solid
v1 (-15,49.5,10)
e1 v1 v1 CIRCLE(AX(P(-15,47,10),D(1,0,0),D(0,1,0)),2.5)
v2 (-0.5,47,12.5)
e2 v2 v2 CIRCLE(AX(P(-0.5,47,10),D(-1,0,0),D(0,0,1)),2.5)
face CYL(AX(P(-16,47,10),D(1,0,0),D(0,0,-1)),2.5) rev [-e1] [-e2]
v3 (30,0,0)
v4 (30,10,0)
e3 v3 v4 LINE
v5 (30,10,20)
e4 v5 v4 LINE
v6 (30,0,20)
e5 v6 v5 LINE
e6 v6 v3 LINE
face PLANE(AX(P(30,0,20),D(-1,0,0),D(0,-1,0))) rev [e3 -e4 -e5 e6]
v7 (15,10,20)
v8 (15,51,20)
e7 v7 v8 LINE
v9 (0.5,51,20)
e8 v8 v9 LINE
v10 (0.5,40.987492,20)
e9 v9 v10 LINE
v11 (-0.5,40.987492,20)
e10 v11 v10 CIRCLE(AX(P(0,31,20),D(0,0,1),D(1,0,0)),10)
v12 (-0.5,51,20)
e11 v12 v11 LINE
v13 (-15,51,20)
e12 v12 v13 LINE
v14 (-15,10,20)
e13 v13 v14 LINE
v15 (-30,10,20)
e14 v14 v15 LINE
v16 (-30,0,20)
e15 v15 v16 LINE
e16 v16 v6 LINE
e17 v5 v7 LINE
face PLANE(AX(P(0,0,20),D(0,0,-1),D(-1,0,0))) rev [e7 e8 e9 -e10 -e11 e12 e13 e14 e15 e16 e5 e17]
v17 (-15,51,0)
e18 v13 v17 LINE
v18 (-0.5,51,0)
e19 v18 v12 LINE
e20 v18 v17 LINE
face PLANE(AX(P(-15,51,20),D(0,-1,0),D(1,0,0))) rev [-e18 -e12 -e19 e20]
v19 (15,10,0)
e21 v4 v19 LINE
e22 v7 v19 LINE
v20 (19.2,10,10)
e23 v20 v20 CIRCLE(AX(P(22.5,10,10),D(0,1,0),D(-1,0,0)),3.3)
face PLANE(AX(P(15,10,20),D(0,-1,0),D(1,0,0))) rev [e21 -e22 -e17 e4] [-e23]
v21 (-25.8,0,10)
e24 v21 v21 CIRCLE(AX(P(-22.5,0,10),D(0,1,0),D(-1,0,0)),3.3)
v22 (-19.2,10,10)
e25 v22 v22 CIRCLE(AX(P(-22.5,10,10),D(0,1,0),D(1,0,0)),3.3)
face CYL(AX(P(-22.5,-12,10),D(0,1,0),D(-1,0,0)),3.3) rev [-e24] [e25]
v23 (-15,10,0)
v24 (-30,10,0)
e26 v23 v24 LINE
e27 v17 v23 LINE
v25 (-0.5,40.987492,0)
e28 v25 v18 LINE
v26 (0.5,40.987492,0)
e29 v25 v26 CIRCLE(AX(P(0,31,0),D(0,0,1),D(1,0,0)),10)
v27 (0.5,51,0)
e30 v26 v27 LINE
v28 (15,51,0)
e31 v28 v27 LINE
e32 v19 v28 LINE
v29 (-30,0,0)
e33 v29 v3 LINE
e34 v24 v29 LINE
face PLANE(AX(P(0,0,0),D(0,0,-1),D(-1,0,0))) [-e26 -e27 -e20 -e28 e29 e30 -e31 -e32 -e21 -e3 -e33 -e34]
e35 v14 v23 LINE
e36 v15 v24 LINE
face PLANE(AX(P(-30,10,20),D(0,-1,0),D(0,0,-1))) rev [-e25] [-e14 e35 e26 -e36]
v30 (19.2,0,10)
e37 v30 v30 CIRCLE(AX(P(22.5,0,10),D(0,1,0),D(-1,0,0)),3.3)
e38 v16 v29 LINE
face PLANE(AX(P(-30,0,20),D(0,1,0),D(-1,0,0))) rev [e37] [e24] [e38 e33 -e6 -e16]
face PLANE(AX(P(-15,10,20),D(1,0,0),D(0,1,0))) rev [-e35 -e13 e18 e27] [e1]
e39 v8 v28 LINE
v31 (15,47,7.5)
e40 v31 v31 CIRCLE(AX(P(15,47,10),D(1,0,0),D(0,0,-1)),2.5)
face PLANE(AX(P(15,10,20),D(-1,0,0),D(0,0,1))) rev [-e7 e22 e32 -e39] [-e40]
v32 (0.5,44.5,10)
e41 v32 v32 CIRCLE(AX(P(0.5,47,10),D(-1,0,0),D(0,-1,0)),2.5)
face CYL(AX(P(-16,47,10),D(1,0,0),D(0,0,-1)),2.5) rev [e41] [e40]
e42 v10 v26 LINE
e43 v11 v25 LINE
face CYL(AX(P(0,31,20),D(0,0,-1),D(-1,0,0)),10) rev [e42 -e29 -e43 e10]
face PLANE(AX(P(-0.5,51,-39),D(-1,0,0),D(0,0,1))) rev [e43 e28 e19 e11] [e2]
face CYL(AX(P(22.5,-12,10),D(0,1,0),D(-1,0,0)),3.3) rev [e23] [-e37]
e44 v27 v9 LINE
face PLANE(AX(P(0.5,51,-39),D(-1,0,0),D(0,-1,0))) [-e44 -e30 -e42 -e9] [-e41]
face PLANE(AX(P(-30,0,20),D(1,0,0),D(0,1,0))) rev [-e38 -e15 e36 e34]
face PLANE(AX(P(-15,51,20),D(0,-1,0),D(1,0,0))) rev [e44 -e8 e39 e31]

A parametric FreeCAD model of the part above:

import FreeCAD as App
import Part
import Sketcher
from FreeCAD import Vector
Q = App.Units.Quantity


def add_polygon(sketch, points):
    """Adds a closed chain of lines whose ends are joined by coincident constraints."""
    first, n = sketch.GeometryCount, len(points)
    for a, b in zip(points, points[1:] + points[:1]):
        sketch.addGeometry(Part.LineSegment(App.Vector(*a, 0), App.Vector(*b, 0)), False)
    for i in range(n):
        sketch.addConstraint(Sketcher.Constraint("Coincident", first + i, 2, first + (i + 1) % n, 1))

doc = App.newDocument("Part")
body = doc.addObject("PartDesign::Body", "Body")

# Sketch on XY plane
sketch1 = body.newObject("Sketcher::SketchObject", "Sketch")
sketch1.AttachmentSupport = (doc.getObject("XY_Plane"), [""])
sketch1.MapMode = "FlatFace"
add_polygon(sketch1, [(-30, 0), (30, 0), (30, 10), (15, 10), (15, 51), (-15, 51), (-15, 10), (-30, 10)])  # lines 0-7
sketch1.addGeometry(Part.Circle(Vector(0, 31, 0), Vector(0, 0, 1), 10), False)  # 8
sketch1.addConstraint(Sketcher.Constraint("Horizontal", 0))
sketch1.addConstraint(Sketcher.Constraint("Vertical", 1))
sketch1.addConstraint(Sketcher.Constraint("Horizontal", 2))
sketch1.addConstraint(Sketcher.Constraint("Vertical", 3))
sketch1.addConstraint(Sketcher.Constraint("Horizontal", 4))
sketch1.addConstraint(Sketcher.Constraint("Vertical", 5))
sketch1.addConstraint(Sketcher.Constraint("Horizontal", 6))
sketch1.addConstraint(Sketcher.Constraint("Vertical", 7))
sketch1.addConstraint(Sketcher.Constraint("Symmetric", 0, 2, 7, 2, -1, 1))
sketch1.addConstraint(Sketcher.Constraint("Symmetric", 2, 2, 5, 2, -2))
sketch1.addConstraint(Sketcher.Constraint("PointOnObject", 8, 3, -2))
sketch1.addConstraint(Sketcher.Constraint("Diameter", 8, Q("20 mm")))
sketch1.addConstraint(Sketcher.Constraint("DistanceX", 0, 1, 0, 2, Q("60 mm")))
sketch1.addConstraint(Sketcher.Constraint("DistanceX", 2, 2, 2, 1, Q("15 mm")))
sketch1.addConstraint(Sketcher.Constraint("DistanceY", 1, 1, 1, 2, Q("10 mm")))
sketch1.addConstraint(Sketcher.Constraint("DistanceY", 3, 1, 3, 2, Q("41 mm")))
sketch1.addConstraint(Sketcher.Constraint("DistanceY", -1, 1, 8, 3, Q("31 mm")))
pad1 = body.newObject("PartDesign::Pad", "Pad")
pad1.Profile = sketch1
pad1.Length = 20

# Sketch on XY plane
sketch2 = body.newObject("Sketcher::SketchObject", "Sketch001")
sketch2.AttachmentSupport = (doc.getObject("XY_Plane"), [""])
sketch2.MapMode = "FlatFace"
sketch2.AttachmentOffset = App.Placement(Vector(0, 0, 20), App.Rotation())
add_polygon(sketch2, [(-0.5, 51), (-0.5, 40.1), (0.5, 40.1), (0.5, 51)])  # lines 0-3
sketch2.addConstraint(Sketcher.Constraint("Vertical", 0))
sketch2.addConstraint(Sketcher.Constraint("Horizontal", 1))
sketch2.addConstraint(Sketcher.Constraint("Vertical", 2))
sketch2.addConstraint(Sketcher.Constraint("Horizontal", 3))
sketch2.addConstraint(Sketcher.Constraint("DistanceX", 1, 1, 1, 2, Q("1 mm")))
sketch2.addConstraint(Sketcher.Constraint("DistanceY", -1, 1, 2, 2, Q("51 mm")))
sketch2.addConstraint(Sketcher.Constraint("DistanceX", 0, 2, -1, 1, Q("0.5 mm")))
sketch2.addConstraint(Sketcher.Constraint("DistanceY", 0, 2, 0, 1, Q("10.850897 mm")))
pocket1 = body.newObject("PartDesign::Pocket", "Pocket")
pocket1.Profile = sketch2
pocket1.Length = 59

# Sketch on YZ plane
sketch3 = body.newObject("Sketcher::SketchObject", "Sketch002")
sketch3.AttachmentSupport = (doc.getObject("YZ_Plane"), [""])
sketch3.MapMode = "FlatFace"
sketch3.AttachmentOffset = App.Placement(Vector(0, 0, 15), App.Rotation())
sketch3.addGeometry(Part.Circle(Vector(47, 10, 0), Vector(0, 0, 1), 2.5), False)
sketch3.addConstraint(Sketcher.Constraint("Diameter", 0, Q("5 mm")))
sketch3.addConstraint(Sketcher.Constraint("DistanceX", -1, 1, 0, 3, Q("47 mm")))
sketch3.addConstraint(Sketcher.Constraint("DistanceY", -1, 1, 0, 3, Q("10 mm")))
pocket2 = body.newObject("PartDesign::Pocket", "Pocket001")
pocket2.Profile = sketch3
pocket2.Length = 31

# Sketch on XZ plane
sketch4 = body.newObject("Sketcher::SketchObject", "Sketch003")
sketch4.AttachmentSupport = (doc.getObject("XZ_Plane"), [""])
sketch4.MapMode = "FlatFace"
sketch4.AttachmentOffset = App.Placement(Vector(0, 0, -10), App.Rotation())
sketch4.addGeometry(Part.Circle(Vector(22.5, 10, 0), Vector(0, 0, 1), 3.3), False)
sketch4.addGeometry(Part.Circle(Vector(-22.5, 10, 0), Vector(0, 0, 1), 3.3), False)
sketch4.addConstraint(Sketcher.Constraint("Equal", 0, 1))
sketch4.addConstraint(Sketcher.Constraint("Symmetric", 0, 3, 1, 3, -2))
sketch4.addConstraint(Sketcher.Constraint("Diameter", 0, Q("6.6 mm")))
sketch4.addConstraint(Sketcher.Constraint("DistanceY", -1, 1, 0, 3, Q("10 mm")))
sketch4.addConstraint(Sketcher.Constraint("DistanceX", 1, 3, 0, 3, Q("45 mm")))
pocket3 = body.newObject("PartDesign::Pocket", "Pocket002")
pocket3.Profile = sketch4
pocket3.Length = 22
pocket3.Reversed = True

doc.recompute()
